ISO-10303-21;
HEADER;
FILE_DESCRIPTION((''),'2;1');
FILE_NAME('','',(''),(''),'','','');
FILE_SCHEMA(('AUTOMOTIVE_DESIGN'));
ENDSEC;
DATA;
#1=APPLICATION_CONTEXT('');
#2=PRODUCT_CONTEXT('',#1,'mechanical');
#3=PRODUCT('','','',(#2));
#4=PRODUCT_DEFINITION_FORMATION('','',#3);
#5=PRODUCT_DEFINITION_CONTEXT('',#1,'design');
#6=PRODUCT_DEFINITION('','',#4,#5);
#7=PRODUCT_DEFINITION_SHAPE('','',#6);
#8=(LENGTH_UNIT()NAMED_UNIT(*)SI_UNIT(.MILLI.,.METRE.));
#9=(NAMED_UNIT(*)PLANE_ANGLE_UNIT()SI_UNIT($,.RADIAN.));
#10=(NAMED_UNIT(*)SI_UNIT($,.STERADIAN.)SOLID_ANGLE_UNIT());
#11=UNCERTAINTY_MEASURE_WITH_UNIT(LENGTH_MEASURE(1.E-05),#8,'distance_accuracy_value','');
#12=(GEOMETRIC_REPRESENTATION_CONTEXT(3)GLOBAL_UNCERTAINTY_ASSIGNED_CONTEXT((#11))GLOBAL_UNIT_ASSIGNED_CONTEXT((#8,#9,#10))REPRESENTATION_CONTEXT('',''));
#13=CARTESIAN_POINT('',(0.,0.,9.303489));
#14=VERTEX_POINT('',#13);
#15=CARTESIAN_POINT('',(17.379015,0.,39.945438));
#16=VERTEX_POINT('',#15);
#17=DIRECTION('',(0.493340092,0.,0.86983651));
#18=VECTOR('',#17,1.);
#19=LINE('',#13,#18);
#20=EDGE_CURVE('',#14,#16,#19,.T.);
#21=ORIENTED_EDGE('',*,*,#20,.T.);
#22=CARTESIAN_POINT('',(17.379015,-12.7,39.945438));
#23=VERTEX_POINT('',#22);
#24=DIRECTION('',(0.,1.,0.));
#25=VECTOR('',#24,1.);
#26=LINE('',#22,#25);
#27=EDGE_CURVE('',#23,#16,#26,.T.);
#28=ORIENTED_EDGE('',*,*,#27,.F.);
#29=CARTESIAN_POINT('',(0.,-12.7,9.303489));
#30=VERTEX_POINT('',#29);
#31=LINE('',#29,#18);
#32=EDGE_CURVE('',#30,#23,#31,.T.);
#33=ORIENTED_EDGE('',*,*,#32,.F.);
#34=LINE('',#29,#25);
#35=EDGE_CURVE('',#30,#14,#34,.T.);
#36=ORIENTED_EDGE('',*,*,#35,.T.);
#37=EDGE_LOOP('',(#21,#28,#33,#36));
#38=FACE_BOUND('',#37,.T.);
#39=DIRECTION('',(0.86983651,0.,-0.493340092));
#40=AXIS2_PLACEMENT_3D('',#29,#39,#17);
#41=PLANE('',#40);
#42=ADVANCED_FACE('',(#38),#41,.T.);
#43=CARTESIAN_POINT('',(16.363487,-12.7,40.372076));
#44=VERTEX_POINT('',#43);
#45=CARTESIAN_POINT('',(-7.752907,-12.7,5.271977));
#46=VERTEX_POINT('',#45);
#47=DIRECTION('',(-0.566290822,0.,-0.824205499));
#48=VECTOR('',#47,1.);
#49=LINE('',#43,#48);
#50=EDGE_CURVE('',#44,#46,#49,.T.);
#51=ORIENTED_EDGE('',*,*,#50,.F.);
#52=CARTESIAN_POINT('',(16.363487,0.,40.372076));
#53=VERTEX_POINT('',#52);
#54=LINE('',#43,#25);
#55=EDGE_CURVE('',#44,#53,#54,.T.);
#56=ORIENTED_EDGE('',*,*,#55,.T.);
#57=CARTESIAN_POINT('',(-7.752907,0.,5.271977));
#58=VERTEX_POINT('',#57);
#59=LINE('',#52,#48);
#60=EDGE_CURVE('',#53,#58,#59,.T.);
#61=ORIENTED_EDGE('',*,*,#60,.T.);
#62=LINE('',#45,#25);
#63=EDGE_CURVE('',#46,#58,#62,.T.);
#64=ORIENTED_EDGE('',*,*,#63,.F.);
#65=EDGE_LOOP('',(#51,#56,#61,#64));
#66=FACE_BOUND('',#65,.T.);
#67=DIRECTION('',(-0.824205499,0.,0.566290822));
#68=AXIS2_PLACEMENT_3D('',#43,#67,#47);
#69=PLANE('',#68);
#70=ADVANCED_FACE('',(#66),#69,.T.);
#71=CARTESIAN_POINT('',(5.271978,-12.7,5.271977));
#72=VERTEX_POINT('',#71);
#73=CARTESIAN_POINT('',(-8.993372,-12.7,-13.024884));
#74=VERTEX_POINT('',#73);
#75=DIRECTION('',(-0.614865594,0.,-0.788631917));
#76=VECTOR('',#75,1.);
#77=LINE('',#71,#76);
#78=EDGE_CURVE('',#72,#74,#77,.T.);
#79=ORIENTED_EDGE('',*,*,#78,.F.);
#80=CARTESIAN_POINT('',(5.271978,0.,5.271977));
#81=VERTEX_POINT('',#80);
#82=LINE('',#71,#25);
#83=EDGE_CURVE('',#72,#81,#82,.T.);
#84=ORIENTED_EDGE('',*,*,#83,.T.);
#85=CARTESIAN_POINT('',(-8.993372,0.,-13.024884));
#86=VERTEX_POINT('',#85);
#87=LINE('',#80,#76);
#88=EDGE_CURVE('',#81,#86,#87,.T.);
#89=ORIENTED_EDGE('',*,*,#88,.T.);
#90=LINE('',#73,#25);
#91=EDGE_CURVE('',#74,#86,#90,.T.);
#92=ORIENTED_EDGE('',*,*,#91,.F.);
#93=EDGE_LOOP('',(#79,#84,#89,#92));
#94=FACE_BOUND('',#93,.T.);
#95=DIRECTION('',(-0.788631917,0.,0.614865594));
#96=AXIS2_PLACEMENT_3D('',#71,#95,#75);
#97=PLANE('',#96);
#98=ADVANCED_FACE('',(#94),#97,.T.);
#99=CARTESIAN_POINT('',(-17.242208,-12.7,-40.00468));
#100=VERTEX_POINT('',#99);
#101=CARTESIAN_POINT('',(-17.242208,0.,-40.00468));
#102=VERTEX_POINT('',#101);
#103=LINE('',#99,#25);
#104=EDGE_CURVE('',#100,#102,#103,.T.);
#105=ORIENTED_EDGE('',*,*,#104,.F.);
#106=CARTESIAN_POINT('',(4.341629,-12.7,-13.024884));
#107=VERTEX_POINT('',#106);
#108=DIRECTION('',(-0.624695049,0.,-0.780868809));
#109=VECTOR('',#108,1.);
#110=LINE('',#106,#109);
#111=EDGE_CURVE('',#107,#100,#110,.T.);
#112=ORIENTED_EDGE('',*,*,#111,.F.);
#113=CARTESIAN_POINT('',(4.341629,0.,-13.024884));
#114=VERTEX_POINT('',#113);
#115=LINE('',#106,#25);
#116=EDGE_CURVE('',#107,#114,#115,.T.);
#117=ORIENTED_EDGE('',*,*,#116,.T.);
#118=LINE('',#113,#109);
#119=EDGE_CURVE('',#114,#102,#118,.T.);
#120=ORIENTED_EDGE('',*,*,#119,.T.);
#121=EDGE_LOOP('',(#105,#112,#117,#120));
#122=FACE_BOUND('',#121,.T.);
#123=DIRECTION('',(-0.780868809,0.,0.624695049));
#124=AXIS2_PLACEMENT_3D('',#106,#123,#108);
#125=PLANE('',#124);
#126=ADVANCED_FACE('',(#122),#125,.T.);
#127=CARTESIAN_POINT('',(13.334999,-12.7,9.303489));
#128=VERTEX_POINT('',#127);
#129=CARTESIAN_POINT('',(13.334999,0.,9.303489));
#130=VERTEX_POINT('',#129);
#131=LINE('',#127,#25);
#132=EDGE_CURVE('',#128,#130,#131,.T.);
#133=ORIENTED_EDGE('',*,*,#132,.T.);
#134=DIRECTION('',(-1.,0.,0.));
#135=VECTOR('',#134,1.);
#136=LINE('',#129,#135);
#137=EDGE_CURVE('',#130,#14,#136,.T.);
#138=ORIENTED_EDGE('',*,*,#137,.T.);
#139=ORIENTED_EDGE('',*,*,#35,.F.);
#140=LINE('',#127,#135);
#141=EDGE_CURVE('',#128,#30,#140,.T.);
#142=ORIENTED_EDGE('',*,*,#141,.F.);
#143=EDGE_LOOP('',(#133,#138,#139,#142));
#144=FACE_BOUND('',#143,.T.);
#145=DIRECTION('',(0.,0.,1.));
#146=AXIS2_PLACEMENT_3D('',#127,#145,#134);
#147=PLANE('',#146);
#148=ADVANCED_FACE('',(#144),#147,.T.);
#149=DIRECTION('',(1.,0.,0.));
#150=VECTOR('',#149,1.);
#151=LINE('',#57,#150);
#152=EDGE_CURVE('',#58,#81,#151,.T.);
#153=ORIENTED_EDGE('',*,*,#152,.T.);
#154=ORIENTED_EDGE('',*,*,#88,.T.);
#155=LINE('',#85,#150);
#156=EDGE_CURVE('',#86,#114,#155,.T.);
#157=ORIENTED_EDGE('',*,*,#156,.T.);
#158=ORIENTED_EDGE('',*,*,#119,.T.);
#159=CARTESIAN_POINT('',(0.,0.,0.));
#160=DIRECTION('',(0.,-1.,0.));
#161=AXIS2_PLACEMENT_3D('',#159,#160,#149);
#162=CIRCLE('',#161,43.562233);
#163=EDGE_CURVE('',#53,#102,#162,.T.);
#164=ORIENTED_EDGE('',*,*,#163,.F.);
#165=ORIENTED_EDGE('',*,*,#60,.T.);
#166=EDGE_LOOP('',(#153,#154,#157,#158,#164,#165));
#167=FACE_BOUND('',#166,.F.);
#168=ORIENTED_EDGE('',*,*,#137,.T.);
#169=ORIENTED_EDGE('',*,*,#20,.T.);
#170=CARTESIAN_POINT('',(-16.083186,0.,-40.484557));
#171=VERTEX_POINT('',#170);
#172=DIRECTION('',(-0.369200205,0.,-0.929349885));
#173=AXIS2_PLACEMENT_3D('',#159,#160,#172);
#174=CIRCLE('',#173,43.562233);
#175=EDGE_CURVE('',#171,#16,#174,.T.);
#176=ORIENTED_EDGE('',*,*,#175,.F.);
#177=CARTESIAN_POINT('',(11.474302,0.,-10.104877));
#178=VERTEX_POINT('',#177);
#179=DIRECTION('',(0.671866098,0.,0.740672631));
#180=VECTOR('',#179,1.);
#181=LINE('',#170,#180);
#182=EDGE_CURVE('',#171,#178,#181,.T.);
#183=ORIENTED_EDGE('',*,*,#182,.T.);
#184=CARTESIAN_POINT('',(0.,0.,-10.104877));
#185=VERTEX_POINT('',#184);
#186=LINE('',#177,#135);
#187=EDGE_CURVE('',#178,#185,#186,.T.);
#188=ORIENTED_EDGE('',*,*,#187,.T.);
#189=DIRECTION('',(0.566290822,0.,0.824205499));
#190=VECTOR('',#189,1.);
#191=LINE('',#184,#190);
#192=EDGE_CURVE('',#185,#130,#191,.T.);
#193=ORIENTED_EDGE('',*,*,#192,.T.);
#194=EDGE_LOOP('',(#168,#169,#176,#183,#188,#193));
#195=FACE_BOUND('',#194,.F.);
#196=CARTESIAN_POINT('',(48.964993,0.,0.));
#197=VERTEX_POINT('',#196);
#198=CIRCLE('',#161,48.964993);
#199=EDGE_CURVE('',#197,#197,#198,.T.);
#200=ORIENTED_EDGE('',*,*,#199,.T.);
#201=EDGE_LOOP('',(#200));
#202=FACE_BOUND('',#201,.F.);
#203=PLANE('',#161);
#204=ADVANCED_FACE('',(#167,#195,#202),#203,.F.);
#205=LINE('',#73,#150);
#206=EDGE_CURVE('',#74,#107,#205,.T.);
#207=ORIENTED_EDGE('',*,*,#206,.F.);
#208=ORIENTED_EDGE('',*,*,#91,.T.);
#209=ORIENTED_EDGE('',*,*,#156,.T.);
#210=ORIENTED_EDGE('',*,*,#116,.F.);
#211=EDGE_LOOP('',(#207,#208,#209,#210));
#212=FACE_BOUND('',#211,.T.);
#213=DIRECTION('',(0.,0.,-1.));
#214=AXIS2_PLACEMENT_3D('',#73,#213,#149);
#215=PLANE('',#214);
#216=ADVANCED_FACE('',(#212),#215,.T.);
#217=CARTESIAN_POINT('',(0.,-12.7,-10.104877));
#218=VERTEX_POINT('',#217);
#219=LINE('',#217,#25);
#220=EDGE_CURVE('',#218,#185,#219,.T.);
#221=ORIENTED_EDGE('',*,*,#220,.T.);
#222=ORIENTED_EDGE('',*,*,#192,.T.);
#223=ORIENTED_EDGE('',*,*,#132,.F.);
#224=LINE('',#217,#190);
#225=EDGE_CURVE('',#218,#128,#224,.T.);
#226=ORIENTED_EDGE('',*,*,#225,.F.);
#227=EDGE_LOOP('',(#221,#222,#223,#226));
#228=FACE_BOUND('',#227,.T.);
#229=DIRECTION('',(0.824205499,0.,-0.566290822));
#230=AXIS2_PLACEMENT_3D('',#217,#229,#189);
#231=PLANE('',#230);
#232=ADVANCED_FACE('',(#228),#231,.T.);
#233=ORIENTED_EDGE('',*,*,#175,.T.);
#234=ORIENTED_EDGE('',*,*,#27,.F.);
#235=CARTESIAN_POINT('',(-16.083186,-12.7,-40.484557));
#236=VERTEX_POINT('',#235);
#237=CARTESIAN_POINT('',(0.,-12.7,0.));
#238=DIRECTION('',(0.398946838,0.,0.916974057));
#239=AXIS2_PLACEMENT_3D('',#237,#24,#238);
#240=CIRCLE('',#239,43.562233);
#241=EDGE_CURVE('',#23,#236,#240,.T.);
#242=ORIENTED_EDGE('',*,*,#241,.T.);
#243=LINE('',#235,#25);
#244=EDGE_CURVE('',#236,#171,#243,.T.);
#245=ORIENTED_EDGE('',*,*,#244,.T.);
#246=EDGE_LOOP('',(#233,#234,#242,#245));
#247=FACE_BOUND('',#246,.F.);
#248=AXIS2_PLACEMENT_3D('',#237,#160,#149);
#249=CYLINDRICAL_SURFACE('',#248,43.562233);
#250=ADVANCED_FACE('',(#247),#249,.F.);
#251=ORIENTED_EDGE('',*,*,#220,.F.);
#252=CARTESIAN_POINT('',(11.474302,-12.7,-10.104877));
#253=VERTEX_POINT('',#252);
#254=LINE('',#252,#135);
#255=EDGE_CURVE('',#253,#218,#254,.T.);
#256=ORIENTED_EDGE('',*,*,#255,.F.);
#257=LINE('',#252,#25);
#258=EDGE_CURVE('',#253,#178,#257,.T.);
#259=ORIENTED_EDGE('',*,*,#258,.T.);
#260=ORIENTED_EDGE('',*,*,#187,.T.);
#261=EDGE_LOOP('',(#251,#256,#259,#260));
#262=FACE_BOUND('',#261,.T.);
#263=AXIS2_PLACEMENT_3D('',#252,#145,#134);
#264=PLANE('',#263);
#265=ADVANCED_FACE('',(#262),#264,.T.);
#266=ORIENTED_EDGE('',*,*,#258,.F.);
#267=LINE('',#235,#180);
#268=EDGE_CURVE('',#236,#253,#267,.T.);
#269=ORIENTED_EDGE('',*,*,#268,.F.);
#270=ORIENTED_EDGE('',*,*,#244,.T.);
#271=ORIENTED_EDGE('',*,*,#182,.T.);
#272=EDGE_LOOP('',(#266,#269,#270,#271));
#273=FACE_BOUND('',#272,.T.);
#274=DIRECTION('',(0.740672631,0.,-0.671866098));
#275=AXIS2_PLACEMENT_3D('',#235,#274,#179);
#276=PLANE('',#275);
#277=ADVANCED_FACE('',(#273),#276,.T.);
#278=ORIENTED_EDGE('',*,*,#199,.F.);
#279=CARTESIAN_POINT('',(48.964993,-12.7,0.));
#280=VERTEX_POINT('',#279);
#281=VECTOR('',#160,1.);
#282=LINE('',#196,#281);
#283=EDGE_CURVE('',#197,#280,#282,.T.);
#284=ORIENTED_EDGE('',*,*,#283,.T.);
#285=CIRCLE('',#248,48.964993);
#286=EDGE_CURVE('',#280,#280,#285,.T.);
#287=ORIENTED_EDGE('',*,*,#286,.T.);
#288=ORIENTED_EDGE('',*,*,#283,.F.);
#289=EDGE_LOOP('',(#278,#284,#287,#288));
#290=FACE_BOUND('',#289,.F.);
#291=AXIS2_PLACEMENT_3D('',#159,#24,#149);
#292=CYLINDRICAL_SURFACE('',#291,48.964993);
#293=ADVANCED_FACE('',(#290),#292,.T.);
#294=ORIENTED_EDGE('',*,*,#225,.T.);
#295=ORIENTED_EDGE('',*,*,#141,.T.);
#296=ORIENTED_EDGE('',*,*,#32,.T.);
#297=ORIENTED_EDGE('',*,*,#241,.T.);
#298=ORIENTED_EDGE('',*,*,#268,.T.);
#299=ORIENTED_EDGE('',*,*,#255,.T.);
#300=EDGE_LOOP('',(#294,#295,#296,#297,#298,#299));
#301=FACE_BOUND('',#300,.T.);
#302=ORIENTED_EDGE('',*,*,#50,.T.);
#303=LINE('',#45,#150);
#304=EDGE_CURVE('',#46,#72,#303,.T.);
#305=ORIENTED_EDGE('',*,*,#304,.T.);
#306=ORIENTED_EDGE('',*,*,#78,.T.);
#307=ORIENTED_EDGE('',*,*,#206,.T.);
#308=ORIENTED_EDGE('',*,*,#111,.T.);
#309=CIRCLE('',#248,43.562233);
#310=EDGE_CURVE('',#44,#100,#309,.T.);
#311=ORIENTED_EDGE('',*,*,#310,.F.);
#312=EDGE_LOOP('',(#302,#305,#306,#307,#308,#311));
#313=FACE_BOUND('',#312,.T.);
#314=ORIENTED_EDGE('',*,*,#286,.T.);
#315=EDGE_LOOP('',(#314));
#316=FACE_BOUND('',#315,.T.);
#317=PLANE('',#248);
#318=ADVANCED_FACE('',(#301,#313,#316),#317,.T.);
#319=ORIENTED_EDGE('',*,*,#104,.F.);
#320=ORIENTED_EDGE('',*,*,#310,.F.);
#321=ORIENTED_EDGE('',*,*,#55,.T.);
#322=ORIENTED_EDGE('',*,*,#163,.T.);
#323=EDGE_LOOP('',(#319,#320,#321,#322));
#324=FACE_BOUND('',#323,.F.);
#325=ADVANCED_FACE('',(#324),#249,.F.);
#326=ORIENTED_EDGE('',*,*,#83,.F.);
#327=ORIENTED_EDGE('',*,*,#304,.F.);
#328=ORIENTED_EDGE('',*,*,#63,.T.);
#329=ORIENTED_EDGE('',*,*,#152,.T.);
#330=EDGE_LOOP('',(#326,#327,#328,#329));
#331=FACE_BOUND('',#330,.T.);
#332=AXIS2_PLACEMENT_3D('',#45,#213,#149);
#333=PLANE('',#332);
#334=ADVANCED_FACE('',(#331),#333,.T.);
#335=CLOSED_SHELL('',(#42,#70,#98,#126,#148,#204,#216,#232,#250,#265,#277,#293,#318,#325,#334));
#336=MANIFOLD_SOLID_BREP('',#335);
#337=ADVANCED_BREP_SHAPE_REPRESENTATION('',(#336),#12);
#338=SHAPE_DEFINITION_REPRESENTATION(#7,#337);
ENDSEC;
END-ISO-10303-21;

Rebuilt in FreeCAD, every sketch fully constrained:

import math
import FreeCAD as App
import Part
import Sketcher

V = App.Vector
Q = App.Units.Quantity

doc = App.newDocument("Part")
body = doc.addObject("PartDesign::Body", "Body")

sketch1 = body.newObject("Sketcher::SketchObject", "Sketch")
sketch1.AttachmentSupport = (doc.getObject("XZ_Plane"), [""])
sketch1.MapMode = "FlatFace"
sketch1.addGeometry(Part.Circle(V(0, 0, 0), V(0, 0, 1), 48.964993), False)
sketch1.addConstraint(Sketcher.Constraint("Coincident", 0, 3, -1, 1))
sketch1.addConstraint(Sketcher.Constraint("Diameter", 0, 97.929985))
pad1 = body.newObject("PartDesign::Pad", "Pad")
pad1.Profile = sketch1
pad1.Length = Q("0.5 in")

sketch2 = body.newObject("Sketcher::SketchObject", "Sketch001")
sketch2.AttachmentSupport = (doc.getObject("XZ_Plane"), [""])
sketch2.MapMode = "FlatFace"
sketch2.AttachmentOffset = App.Placement(V(0, 0, 0.5 * 25.4), App.Rotation())
sketch2.addGeometry(Part.Circle(V(0, 0, 0), V(0, 0, 1), 43.562233), False)
sketch2.addConstraint(Sketcher.Constraint("Coincident", 0, 3, -1, 1))
sketch2.addConstraint(Sketcher.Constraint("Diameter", 0, 87.124467))
pocket1 = body.newObject("PartDesign::Pocket", "Pocket")
pocket1.Profile = sketch2
pocket1.Length = Q("0.5 in")

sketch3 = body.newObject("Sketcher::SketchObject", "Sketch002")
sketch3.AttachmentSupport = (doc.getObject("XZ_Plane"), [""])
sketch3.MapMode = "FlatFace"
sketch3.AttachmentOffset = App.Placement(V(0, 0, 0.5 * 25.4), App.Rotation())
sketch3.addGeometry(Part.ArcOfCircle(Part.Circle(V(0, 0, 0), V(0, 0, 1), 43.562233), math.radians(66.487643), math.radians(67.936453)), False)
sketch3.addGeometry(Part.LineSegment(V(16.363487, 40.372076, 0), V(-7.752907, 5.271977, 0)), False)
sketch3.addGeometry(Part.LineSegment(V(-7.752907, 5.271977, 0), V(5.271978, 5.271977, 0)), False)
sketch3.addGeometry(Part.LineSegment(V(5.271978, 5.271977, 0), V(-8.993372, -13.024884, 0)), False)
sketch3.addGeometry(Part.LineSegment(V(-8.993372, -13.024884, 0), V(4.341629, -13.024884, 0)), False)
sketch3.addGeometry(Part.LineSegment(V(4.341629, -13.024884, 0), V(-17.242208, -40.00468, 0)), False)
sketch3.addGeometry(Part.ArcOfCircle(Part.Circle(V(0, 0, 0), V(0, 0, 1), 43.562234), math.radians(-113.316273), math.radians(-111.6663)), False)
sketch3.addGeometry(Part.LineSegment(V(-16.083186, -40.484557, 0), V(11.474302, -10.104877, 0)), False)
sketch3.addGeometry(Part.LineSegment(V(11.474302, -10.104877, 0), V(0, -10.104877, 0)), False)
sketch3.addGeometry(Part.LineSegment(V(0, -10.104877, 0), V(13.334999, 9.303489, 0)), False)
sketch3.addGeometry(Part.LineSegment(V(13.334999, 9.303489, 0), V(0, 9.303489, 0)), False)
sketch3.addGeometry(Part.LineSegment(V(0, 9.303489, 0), V(17.379015, 39.945438, 0)), False)
sketch3.addConstraint(Sketcher.Constraint("Coincident", 0, 2, 1, 1))
sketch3.addConstraint(Sketcher.Constraint("Coincident", 1, 2, 2, 1))
sketch3.addConstraint(Sketcher.Constraint("Coincident", 2, 2, 3, 1))
sketch3.addConstraint(Sketcher.Constraint("Coincident", 3, 2, 4, 1))
sketch3.addConstraint(Sketcher.Constraint("Coincident", 4, 2, 5, 1))
sketch3.addConstraint(Sketcher.Constraint("Coincident", 5, 2, 6, 1))
sketch3.addConstraint(Sketcher.Constraint("Coincident", 6, 2, 7, 1))
sketch3.addConstraint(Sketcher.Constraint("Coincident", 7, 2, 8, 1))
sketch3.addConstraint(Sketcher.Constraint("Coincident", 8, 2, 9, 1))
sketch3.addConstraint(Sketcher.Constraint("Coincident", 9, 2, 10, 1))
sketch3.addConstraint(Sketcher.Constraint("Coincident", 10, 2, 11, 1))
sketch3.addConstraint(Sketcher.Constraint("Coincident", 11, 2, 0, 1))
sketch3.addConstraint(Sketcher.Constraint("Horizontal", 2))
sketch3.addConstraint(Sketcher.Constraint("Horizontal", 4))
sketch3.addConstraint(Sketcher.Constraint("Horizontal", 8))
sketch3.addConstraint(Sketcher.Constraint("Horizontal", 10))
sketch3.addConstraint(Sketcher.Constraint("Coincident", 0, 3, -1, 1))
sketch3.addConstraint(Sketcher.Constraint("Coincident", 6, 3, -1, 1))
sketch3.addConstraint(Sketcher.Constraint("Equal", 0, 6))
sketch3.addConstraint(Sketcher.Constraint("PointOnObject", 8, 2, -2))
sketch3.addConstraint(Sketcher.Constraint("PointOnObject", 10, 2, -2))
sketch3.addConstraint(Sketcher.Constraint("Parallel", 1, 9))
sketch3.addConstraint(Sketcher.Constraint("DistanceX", 4, 1, 4, 2, Q("0.525 in")))
sketch3.addConstraint(Sketcher.Constraint("DistanceX", 10, 2, 10, 1, Q("0.525 in")))
sketch3.addConstraint(Sketcher.Constraint("Radius", 0, 43.562233))
sketch3.addConstraint(Sketcher.Constraint("DistanceY", 1, 2, 0, 2, 35.100099))
sketch3.addConstraint(Sketcher.Constraint("DistanceX", 5, 2, 1, 2, 9.489301))
sketch3.addConstraint(Sketcher.Constraint("DistanceX", 6, 3, 7, 2, 11.474302))
sketch3.addConstraint(Sketcher.Constraint("Distance", 3, 23.200762))
sketch3.addConstraint(Sketcher.Constraint("Distance", 7, 41.016339))
sketch3.addConstraint(Sketcher.Constraint("Distance", 9, 23.547969))
sketch3.addConstraint(Sketcher.Constraint("Distance", 11, 35.227251))
sketch3.addConstraint(Sketcher.Constraint("DistanceX", 2, 1, 2, 2, 13.024884))
sketch3.addConstraint(Sketcher.Constraint("DistanceX", -1, 1, 4, 2, 4.341629))
sketch3.addConstraint(Sketcher.Constraint("DistanceY", 5, 2, -1, 1, 40.00468))
sketch3.addConstraint(Sketcher.Constraint("DistanceY", -1, 1, 9, 2, 9.303489))
pad2 = body.newObject("PartDesign::Pad", "Pad001")
pad2.Profile = sketch3
pad2.Length = Q("0.5 in")
pad2.Reversed = True

doc.recompute()
